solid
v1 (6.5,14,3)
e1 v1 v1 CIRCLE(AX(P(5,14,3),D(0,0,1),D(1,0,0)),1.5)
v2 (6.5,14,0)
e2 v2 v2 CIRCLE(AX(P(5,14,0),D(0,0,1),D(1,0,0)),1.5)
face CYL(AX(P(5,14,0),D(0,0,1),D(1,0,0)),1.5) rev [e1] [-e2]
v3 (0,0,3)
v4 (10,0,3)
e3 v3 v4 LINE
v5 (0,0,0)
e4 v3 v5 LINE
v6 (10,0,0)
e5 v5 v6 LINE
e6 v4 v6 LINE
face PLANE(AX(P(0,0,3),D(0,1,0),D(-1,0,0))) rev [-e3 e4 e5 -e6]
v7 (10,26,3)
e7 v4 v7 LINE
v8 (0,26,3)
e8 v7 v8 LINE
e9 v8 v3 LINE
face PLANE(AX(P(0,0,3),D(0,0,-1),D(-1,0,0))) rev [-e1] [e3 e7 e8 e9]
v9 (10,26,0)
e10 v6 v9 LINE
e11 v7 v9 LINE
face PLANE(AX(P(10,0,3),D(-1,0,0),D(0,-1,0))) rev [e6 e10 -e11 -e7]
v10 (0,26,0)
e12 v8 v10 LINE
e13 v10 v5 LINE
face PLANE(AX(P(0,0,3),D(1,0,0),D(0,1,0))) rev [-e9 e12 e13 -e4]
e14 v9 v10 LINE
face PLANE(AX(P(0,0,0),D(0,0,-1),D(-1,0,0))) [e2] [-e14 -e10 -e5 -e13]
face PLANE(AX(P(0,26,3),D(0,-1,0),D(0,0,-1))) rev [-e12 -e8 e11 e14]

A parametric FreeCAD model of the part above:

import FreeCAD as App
import Part
import Sketcher
from FreeCAD import Vector
Q = App.Units.Quantity


def add_polygon(sketch, points):
    """Adds a closed chain of lines whose ends are joined by coincident constraints."""
    first, n = sketch.GeometryCount, len(points)
    for a, b in zip(points, points[1:] + points[:1]):
        sketch.addGeometry(Part.LineSegment(App.Vector(*a, 0), App.Vector(*b, 0)), False)
    for i in range(n):
        sketch.addConstraint(Sketcher.Constraint("Coincident", first + i, 2, first + (i + 1) % n, 1))

doc = App.newDocument("Part")
body = doc.addObject("PartDesign::Body", "Body")

# Sketch on XY plane
sketch1 = body.newObject("Sketcher::SketchObject", "Sketch")
sketch1.AttachmentSupport = (doc.getObject("XY_Plane"), [""])
sketch1.MapMode = "FlatFace"
add_polygon(sketch1, [(0, 26), (0, 0), (10, 0), (10, 26)])  # lines 0-3
sketch1.addConstraint([
    Sketcher.Constraint("Vertical", 0),
    Sketcher.Constraint("Horizontal", 1),
    Sketcher.Constraint("Vertical", 2),
    Sketcher.Constraint("Horizontal", 3),
    Sketcher.Constraint("Coincident", 0, 2, -1, 1),
    Sketcher.Constraint("DistanceX", 1, 1, 1, 2, Q("10 mm")),
    Sketcher.Constraint("DistanceY", 0, 2, 0, 1, Q("26 mm")),
])
pad1 = body.newObject("PartDesign::Pad", "Pad")
pad1.Profile = sketch1
pad1.Length = 3

# Sketch on XY plane
sketch2 = body.newObject("Sketcher::SketchObject", "Sketch001")
sketch2.AttachmentSupport = (doc.getObject("XY_Plane"), [""])
sketch2.MapMode = "FlatFace"
sketch2.AttachmentOffset = App.Placement(Vector(0, 0, 3), App.Rotation())
sketch2.addGeometry(Part.Circle(Vector(5, 14, 0), Vector(0, 0, 1), 1.5), False)
sketch2.addConstraint([
    Sketcher.Constraint("Diameter", 0, Q("3 mm")),
    Sketcher.Constraint("DistanceX", -1, 1, 0, 3, Q("5 mm")),
    Sketcher.Constraint("DistanceY", -1, 1, 0, 3, Q("14 mm")),
])
pocket1 = body.newObject("PartDesign::Pocket", "Pocket")
pocket1.Profile = sketch2
pocket1.Type = "ThroughAll"

doc.recompute()
